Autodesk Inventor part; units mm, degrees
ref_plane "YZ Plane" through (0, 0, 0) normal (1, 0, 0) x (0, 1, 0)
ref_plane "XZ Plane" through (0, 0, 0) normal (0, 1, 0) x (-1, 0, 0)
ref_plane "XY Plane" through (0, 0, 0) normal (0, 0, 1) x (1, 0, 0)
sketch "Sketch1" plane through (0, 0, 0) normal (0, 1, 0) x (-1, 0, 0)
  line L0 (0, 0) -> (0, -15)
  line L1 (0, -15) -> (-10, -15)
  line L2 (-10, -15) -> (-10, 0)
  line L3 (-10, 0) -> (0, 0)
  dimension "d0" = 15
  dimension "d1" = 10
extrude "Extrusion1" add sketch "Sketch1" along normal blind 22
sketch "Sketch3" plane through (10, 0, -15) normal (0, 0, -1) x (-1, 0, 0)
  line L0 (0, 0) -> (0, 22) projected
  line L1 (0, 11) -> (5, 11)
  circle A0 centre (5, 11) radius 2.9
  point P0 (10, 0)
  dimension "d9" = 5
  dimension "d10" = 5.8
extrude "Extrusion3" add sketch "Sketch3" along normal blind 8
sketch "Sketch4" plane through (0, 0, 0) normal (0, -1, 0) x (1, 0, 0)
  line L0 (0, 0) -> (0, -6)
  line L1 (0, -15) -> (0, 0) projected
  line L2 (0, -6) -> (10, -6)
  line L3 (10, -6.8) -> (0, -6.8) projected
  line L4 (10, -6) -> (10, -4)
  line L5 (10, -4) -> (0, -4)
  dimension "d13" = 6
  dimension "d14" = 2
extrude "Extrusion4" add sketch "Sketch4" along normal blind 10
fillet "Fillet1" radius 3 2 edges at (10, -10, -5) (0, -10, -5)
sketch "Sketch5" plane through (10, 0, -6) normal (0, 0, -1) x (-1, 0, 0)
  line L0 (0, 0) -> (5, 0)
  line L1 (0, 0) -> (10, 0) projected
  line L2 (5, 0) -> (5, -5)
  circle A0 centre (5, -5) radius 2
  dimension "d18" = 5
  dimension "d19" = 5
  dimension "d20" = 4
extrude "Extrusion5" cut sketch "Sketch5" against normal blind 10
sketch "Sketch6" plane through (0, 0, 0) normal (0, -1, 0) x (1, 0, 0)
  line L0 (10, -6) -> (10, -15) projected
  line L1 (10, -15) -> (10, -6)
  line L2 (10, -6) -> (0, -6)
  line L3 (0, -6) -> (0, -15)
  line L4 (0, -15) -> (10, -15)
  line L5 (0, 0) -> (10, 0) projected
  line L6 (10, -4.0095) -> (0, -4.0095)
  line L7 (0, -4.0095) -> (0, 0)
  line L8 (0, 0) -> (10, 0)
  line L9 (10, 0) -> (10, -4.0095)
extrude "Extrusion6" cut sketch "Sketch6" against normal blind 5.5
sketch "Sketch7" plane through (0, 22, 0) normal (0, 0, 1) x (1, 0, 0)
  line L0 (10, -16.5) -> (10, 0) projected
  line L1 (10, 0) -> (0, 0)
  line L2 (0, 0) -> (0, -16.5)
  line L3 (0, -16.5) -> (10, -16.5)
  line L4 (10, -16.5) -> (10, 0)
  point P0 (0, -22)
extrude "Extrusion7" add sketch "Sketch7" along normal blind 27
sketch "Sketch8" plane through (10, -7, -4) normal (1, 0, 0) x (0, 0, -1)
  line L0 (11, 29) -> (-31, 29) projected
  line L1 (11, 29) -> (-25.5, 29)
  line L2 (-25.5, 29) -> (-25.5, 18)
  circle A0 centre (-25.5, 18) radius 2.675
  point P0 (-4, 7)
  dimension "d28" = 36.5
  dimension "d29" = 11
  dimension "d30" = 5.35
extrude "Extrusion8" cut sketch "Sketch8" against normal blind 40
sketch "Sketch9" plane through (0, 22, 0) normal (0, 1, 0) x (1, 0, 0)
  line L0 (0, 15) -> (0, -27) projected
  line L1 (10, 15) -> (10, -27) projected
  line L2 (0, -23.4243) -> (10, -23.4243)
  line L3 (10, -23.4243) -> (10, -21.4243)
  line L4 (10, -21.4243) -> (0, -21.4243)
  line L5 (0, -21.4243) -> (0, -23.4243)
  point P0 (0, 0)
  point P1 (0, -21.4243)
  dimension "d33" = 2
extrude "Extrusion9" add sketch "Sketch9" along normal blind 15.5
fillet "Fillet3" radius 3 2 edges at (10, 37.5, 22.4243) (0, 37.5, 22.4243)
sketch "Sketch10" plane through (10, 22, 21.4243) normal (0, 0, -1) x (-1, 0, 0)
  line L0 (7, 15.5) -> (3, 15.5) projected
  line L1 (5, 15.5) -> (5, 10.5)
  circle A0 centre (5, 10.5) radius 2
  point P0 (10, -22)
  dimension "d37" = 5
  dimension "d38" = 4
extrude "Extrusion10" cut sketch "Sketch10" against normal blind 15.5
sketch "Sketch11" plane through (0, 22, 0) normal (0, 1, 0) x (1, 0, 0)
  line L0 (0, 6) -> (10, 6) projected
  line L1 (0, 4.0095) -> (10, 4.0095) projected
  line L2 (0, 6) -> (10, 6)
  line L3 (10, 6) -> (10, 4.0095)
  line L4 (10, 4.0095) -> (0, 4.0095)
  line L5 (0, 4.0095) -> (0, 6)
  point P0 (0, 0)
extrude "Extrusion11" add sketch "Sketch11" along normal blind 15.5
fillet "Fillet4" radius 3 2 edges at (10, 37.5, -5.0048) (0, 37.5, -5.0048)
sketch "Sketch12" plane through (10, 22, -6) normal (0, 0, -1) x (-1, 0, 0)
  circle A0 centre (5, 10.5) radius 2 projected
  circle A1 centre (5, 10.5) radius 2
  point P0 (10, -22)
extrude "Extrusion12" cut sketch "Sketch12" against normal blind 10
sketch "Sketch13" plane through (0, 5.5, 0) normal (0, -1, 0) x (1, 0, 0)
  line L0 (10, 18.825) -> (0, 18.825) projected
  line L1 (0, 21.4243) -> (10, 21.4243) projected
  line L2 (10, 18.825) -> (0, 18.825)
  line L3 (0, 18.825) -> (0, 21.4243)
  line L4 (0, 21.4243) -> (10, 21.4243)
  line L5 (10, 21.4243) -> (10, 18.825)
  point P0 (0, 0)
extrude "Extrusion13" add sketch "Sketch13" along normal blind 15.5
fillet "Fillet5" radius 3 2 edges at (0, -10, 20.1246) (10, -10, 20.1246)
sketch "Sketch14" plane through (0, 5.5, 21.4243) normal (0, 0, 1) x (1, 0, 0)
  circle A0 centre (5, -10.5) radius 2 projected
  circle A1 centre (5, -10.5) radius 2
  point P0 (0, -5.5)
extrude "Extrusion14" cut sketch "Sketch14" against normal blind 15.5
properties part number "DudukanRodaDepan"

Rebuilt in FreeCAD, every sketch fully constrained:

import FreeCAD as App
import Part
import Sketcher
Q = App.Units.Quantity


def edges_at(feature, points):
    """Names of the edges that pass closest to the given points."""
    edges = feature.Shape.Edges
    near = lambda p: min(range(len(edges)), key=lambda i: edges[i].distToShape(Part.Vertex(*p))[0])
    return sorted({f"Edge{near(p) + 1}" for p in points})

doc = App.newDocument("Part")
body = doc.addObject("PartDesign::Body", "Body")

# Sketch on XZ plane
sketch1 = body.newObject("Sketcher::SketchObject", "Sketch")
sketch1.AttachmentSupport = (doc.getObject("XZ_Plane"), [""])
sketch1.MapMode = "FlatFace"
sketch1.addGeometry(Part.LineSegment(App.Vector(0, -15, 0), App.Vector(0, 0, 0)), False)
sketch1.addGeometry(Part.LineSegment(App.Vector(0, 0, 0), App.Vector(10, 0, 0)), False)
sketch1.addGeometry(Part.LineSegment(App.Vector(10, 0, 0), App.Vector(10, -15, 0)), False)
sketch1.addGeometry(Part.LineSegment(App.Vector(10, -15, 0), App.Vector(0, -15, 0)), False)
sketch1.addConstraint(Sketcher.Constraint("Coincident", 0, 2, 1, 1))
sketch1.addConstraint(Sketcher.Constraint("Coincident", 1, 2, 2, 1))
sketch1.addConstraint(Sketcher.Constraint("Coincident", 2, 2, 3, 1))
sketch1.addConstraint(Sketcher.Constraint("Coincident", 3, 2, 0, 1))
sketch1.addConstraint(Sketcher.Constraint("Vertical", 0))
sketch1.addConstraint(Sketcher.Constraint("Horizontal", 1))
sketch1.addConstraint(Sketcher.Constraint("Vertical", 2))
sketch1.addConstraint(Sketcher.Constraint("Horizontal", 3))
sketch1.addConstraint(Sketcher.Constraint("Coincident", 0, 2, -1, 1))
sketch1.addConstraint(Sketcher.Constraint("DistanceX", 1, 1, 1, 2, Q("10 mm")))
sketch1.addConstraint(Sketcher.Constraint("DistanceY", 0, 1, 0, 2, Q("15 mm")))
pad1 = body.newObject("PartDesign::Pad", "Pad")
pad1.Profile = sketch1
pad1.Length = 22
pad1.Reversed = True

# Sketch on XY plane
sketch2 = body.newObject("Sketcher::SketchObject", "Sketch001")
sketch2.AttachmentSupport = (doc.getObject("XY_Plane"), [""])
sketch2.MapMode = "FlatFace"
sketch2.AttachmentOffset = App.Placement(App.Vector(0, 0, -15), App.Rotation())
sketch2.addGeometry(Part.Circle(App.Vector(5, 11, 0), App.Vector(0, 0, 1), 2.9), False)
sketch2.addConstraint(Sketcher.Constraint("Diameter", 0, Q("5.8 mm")))
sketch2.addConstraint(Sketcher.Constraint("DistanceX", -1, 1, 0, 3, Q("5 mm")))
sketch2.addConstraint(Sketcher.Constraint("DistanceY", -1, 1, 0, 3, Q("11 mm")))
pad2 = body.newObject("PartDesign::Pad", "Pad001")
pad2.Profile = sketch2
pad2.Length = 8
pad2.Reversed = True

# Sketch on XZ plane
sketch3 = body.newObject("Sketcher::SketchObject", "Sketch002")
sketch3.AttachmentSupport = (doc.getObject("XZ_Plane"), [""])
sketch3.MapMode = "FlatFace"
sketch3.addGeometry(Part.LineSegment(App.Vector(10, -4, 0), App.Vector(0, -4, 0)), False)
sketch3.addGeometry(Part.LineSegment(App.Vector(0, -4, 0), App.Vector(0, -6, 0)), False)
sketch3.addGeometry(Part.LineSegment(App.Vector(0, -6, 0), App.Vector(10, -6, 0)), False)
sketch3.addGeometry(Part.LineSegment(App.Vector(10, -6, 0), App.Vector(10, -4, 0)), False)
sketch3.addConstraint(Sketcher.Constraint("Coincident", 0, 2, 1, 1))
sketch3.addConstraint(Sketcher.Constraint("Coincident", 1, 2, 2, 1))
sketch3.addConstraint(Sketcher.Constraint("Coincident", 2, 2, 3, 1))
sketch3.addConstraint(Sketcher.Constraint("Coincident", 3, 2, 0, 1))
sketch3.addConstraint(Sketcher.Constraint("Horizontal", 0))
sketch3.addConstraint(Sketcher.Constraint("Vertical", 1))
sketch3.addConstraint(Sketcher.Constraint("Horizontal", 2))
sketch3.addConstraint(Sketcher.Constraint("Vertical", 3))
sketch3.addConstraint(Sketcher.Constraint("PointOnObject", 0, 2, -2))
sketch3.addConstraint(Sketcher.Constraint("DistanceY", 1, 2, 1, 1, Q("2 mm")))
sketch3.addConstraint(Sketcher.Constraint("DistanceY", 1, 2, -1, 1, Q("6 mm")))
sketch3.addConstraint(Sketcher.Constraint("DistanceX", 0, 2, 0, 1, Q("10 mm")))
pad3 = body.newObject("PartDesign::Pad", "Pad002")
pad3.Profile = sketch3
pad3.Length = 10
doc.recompute()

fillet = body.newObject("PartDesign::Fillet", "Fillet")
fillet.Base = (pad3, edges_at(pad3, [(10, -10, -5), (0, -10, -5)]))
fillet.Radius = 3

# Sketch on XY plane
sketch4 = body.newObject("Sketcher::SketchObject", "Sketch003")
sketch4.AttachmentSupport = (doc.getObject("XY_Plane"), [""])
sketch4.MapMode = "FlatFace"
sketch4.AttachmentOffset = App.Placement(App.Vector(0, 0, -6), App.Rotation())
sketch4.addGeometry(Part.Circle(App.Vector(5, -5, 0), App.Vector(0, 0, 1), 2), False)
sketch4.addConstraint(Sketcher.Constraint("Diameter", 0, Q("4 mm")))
sketch4.addConstraint(Sketcher.Constraint("DistanceX", -1, 1, 0, 3, Q("5 mm")))
sketch4.addConstraint(Sketcher.Constraint("DistanceY", 0, 3, -1, 1, Q("5 mm")))
pocket1 = body.newObject("PartDesign::Pocket", "Pocket")
pocket1.Profile = sketch4
pocket1.Length = 10
pocket1.Reversed = True

# Sketch on XZ plane
sketch5 = body.newObject("Sketcher::SketchObject", "Sketch004")
sketch5.AttachmentSupport = (doc.getObject("XZ_Plane"), [""])
sketch5.MapMode = "FlatFace"
sketch5.addGeometry(Part.LineSegment(App.Vector(10, -15, 0), App.Vector(10, -6, 0)), False)
sketch5.addGeometry(Part.LineSegment(App.Vector(10, -6, 0), App.Vector(0, -6, 0)), False)
sketch5.addGeometry(Part.LineSegment(App.Vector(0, -6, 0), App.Vector(0, -15, 0)), False)
sketch5.addGeometry(Part.LineSegment(App.Vector(0, -15, 0), App.Vector(10, -15, 0)), False)
sketch5.addGeometry(Part.LineSegment(App.Vector(10, 0, 0), App.Vector(0, 0, 0)), False)
sketch5.addGeometry(Part.LineSegment(App.Vector(0, 0, 0), App.Vector(0, -4.0095, 0)), False)
sketch5.addGeometry(Part.LineSegment(App.Vector(0, -4.0095, 0), App.Vector(10, -4.0095, 0)), False)
sketch5.addGeometry(Part.LineSegment(App.Vector(10, -4.0095, 0), App.Vector(10, 0, 0)), False)
sketch5.addConstraint(Sketcher.Constraint("Coincident", 0, 2, 1, 1))
sketch5.addConstraint(Sketcher.Constraint("Coincident", 1, 2, 2, 1))
sketch5.addConstraint(Sketcher.Constraint("Coincident", 2, 2, 3, 1))
sketch5.addConstraint(Sketcher.Constraint("Coincident", 3, 2, 0, 1))
sketch5.addConstraint(Sketcher.Constraint("Coincident", 4, 2, 5, 1))
sketch5.addConstraint(Sketcher.Constraint("Coincident", 5, 2, 6, 1))
sketch5.addConstraint(Sketcher.Constraint("Coincident", 6, 2, 7, 1))
sketch5.addConstraint(Sketcher.Constraint("Coincident", 7, 2, 4, 1))
sketch5.addConstraint(Sketcher.Constraint("Vertical", 0))
sketch5.addConstraint(Sketcher.Constraint("Horizontal", 1))
sketch5.addConstraint(Sketcher.Constraint("Vertical", 2))
sketch5.addConstraint(Sketcher.Constraint("Horizontal", 3))
sketch5.addConstraint(Sketcher.Constraint("Horizontal", 4))
sketch5.addConstraint(Sketcher.Constraint("Vertical", 5))
sketch5.addConstraint(Sketcher.Constraint("Horizontal", 6))
sketch5.addConstraint(Sketcher.Constraint("Vertical", 7))
sketch5.addConstraint(Sketcher.Constraint("Coincident", 4, 2, -1, 1))
sketch5.addConstraint(Sketcher.Constraint("PointOnObject", 1, 2, -2))
sketch5.addConstraint(Sketcher.Constraint("Vertical", 3, 2, 6, 2))
sketch5.addConstraint(Sketcher.Constraint("DistanceX", 1, 2, 1, 1, Q("10 mm")))
sketch5.addConstraint(Sketcher.Constraint("DistanceY", 0, 1, 0, 2, Q("9 mm")))
sketch5.addConstraint(Sketcher.Constraint("DistanceY", 0, 2, -1, 1, Q("6 mm")))
sketch5.addConstraint(Sketcher.Constraint("DistanceY", 5, 2, 5, 1, Q("4.0095 mm")))
pocket2 = body.newObject("PartDesign::Pocket", "Pocket001")
pocket2.Profile = sketch5
pocket2.Length = 5.5

# Sketch on XY plane
sketch6 = body.newObject("Sketcher::SketchObject", "Sketch005")
sketch6.AttachmentSupport = (doc.getObject("XY_Plane"), [""])
sketch6.MapMode = "FlatFace"
sketch6.addGeometry(Part.LineSegment(App.Vector(0, 5.5, 0), App.Vector(10, 5.5, 0)), False)
sketch6.addGeometry(Part.LineSegment(App.Vector(10, 5.5, 0), App.Vector(10, 22, 0)), False)
sketch6.addGeometry(Part.LineSegment(App.Vector(10, 22, 0), App.Vector(0, 22, 0)), False)
sketch6.addGeometry(Part.LineSegment(App.Vector(0, 22, 0), App.Vector(0, 5.5, 0)), False)
sketch6.addConstraint(Sketcher.Constraint("Coincident", 0, 2, 1, 1))
sketch6.addConstraint(Sketcher.Constraint("Coincident", 1, 2, 2, 1))
sketch6.addConstraint(Sketcher.Constraint("Coincident", 2, 2, 3, 1))
sketch6.addConstraint(Sketcher.Constraint("Coincident", 3, 2, 0, 1))
sketch6.addConstraint(Sketcher.Constraint("Horizontal", 0))
sketch6.addConstraint(Sketcher.Constraint("Vertical", 1))
sketch6.addConstraint(Sketcher.Constraint("Horizontal", 2))
sketch6.addConstraint(Sketcher.Constraint("Vertical", 3))
sketch6.addConstraint(Sketcher.Constraint("PointOnObject", 2, 2, -2))
sketch6.addConstraint(Sketcher.Constraint("DistanceX", 0, 1, 0, 2, Q("10 mm")))
sketch6.addConstraint(Sketcher.Constraint("DistanceY", 1, 1, 1, 2, Q("16.5 mm")))
sketch6.addConstraint(Sketcher.Constraint("DistanceY", -1, 1, 1, 2, Q("22 mm")))
pad4 = body.newObject("PartDesign::Pad", "Pad003")
pad4.Profile = sketch6
pad4.Length = 27

# Sketch on YZ plane
sketch7 = body.newObject("Sketcher::SketchObject", "Sketch006")
sketch7.AttachmentSupport = (doc.getObject("YZ_Plane"), [""])
sketch7.MapMode = "FlatFace"
sketch7.AttachmentOffset = App.Placement(App.Vector(0, 0, 10), App.Rotation())
sketch7.addGeometry(Part.Circle(App.Vector(11, 21.5, 0), App.Vector(0, 0, 1), 2.675), False)
sketch7.addConstraint(Sketcher.Constraint("Diameter", 0, Q("5.35 mm")))
sketch7.addConstraint(Sketcher.Constraint("DistanceX", -1, 1, 0, 3, Q("11 mm")))
sketch7.addConstraint(Sketcher.Constraint("DistanceY", -1, 1, 0, 3, Q("21.5 mm")))
pocket3 = body.newObject("PartDesign::Pocket", "Pocket002")
pocket3.Profile = sketch7
pocket3.Length = 40

# Sketch on XZ plane
sketch8 = body.newObject("Sketcher::SketchObject", "Sketch007")
sketch8.AttachmentSupport = (doc.getObject("XZ_Plane"), [""])
sketch8.MapMode = "FlatFace"
sketch8.AttachmentOffset = App.Placement(App.Vector(0, 0, -22), App.Rotation())
sketch8.addGeometry(Part.LineSegment(App.Vector(10, 21.4243, 0), App.Vector(0, 21.4243, 0)), False)
sketch8.addGeometry(Part.LineSegment(App.Vector(0, 21.4243, 0), App.Vector(0, 23.4243, 0)), False)
sketch8.addGeometry(Part.LineSegment(App.Vector(0, 23.4243, 0), App.Vector(10, 23.4243, 0)), False)
sketch8.addGeometry(Part.LineSegment(App.Vector(10, 23.4243, 0), App.Vector(10, 21.4243, 0)), False)
sketch8.addConstraint(Sketcher.Constraint("Coincident", 0, 2, 1, 1))
sketch8.addConstraint(Sketcher.Constraint("Coincident", 1, 2, 2, 1))
sketch8.addConstraint(Sketcher.Constraint("Coincident", 2, 2, 3, 1))
sketch8.addConstraint(Sketcher.Constraint("Coincident", 3, 2, 0, 1))
sketch8.addConstraint(Sketcher.Constraint("Horizontal", 0))
sketch8.addConstraint(Sketcher.Constraint("Vertical", 1))
sketch8.addConstraint(Sketcher.Constraint("Horizontal", 2))
sketch8.addConstraint(Sketcher.Constraint("Vertical", 3))
sketch8.addConstraint(Sketcher.Constraint("PointOnObject", 0, 2, -2))
sketch8.addConstraint(Sketcher.Constraint("DistanceY", 1, 1, 1, 2, Q("2 mm")))
sketch8.addConstraint(Sketcher.Constraint("DistanceX", 0, 2, 0, 1, Q("10 mm")))
sketch8.addConstraint(Sketcher.Constraint("DistanceY", -1, 1, 0, 2, Q("21.4243 mm")))
pad5 = body.newObject("PartDesign::Pad", "Pad004")
pad5.Profile = sketch8
pad5.Length = 15.5
pad5.Reversed = True
doc.recompute()

fillet2 = body.newObject("PartDesign::Fillet", "Fillet001")
fillet2.Base = (pad5, edges_at(pad5, [(10, 37.5, 22.424), (0, 37.5, 22.424)]))
fillet2.Radius = 3

# Sketch on XY plane
sketch9 = body.newObject("Sketcher::SketchObject", "Sketch008")
sketch9.AttachmentSupport = (doc.getObject("XY_Plane"), [""])
sketch9.MapMode = "FlatFace"
sketch9.AttachmentOffset = App.Placement(App.Vector(0, 0, 21.4243), App.Rotation())
sketch9.addGeometry(Part.Circle(App.Vector(5, 32.5, 0), App.Vector(0, 0, 1), 2), False)
sketch9.addConstraint(Sketcher.Constraint("Diameter", 0, Q("4 mm")))
sketch9.addConstraint(Sketcher.Constraint("DistanceX", -1, 1, 0, 3, Q("5 mm")))
sketch9.addConstraint(Sketcher.Constraint("DistanceY", -1, 1, 0, 3, Q("32.5 mm")))
pocket4 = body.newObject("PartDesign::Pocket", "Pocket003")
pocket4.Profile = sketch9
pocket4.Length = 15.5
pocket4.Reversed = True

# Sketch on XZ plane
sketch10 = body.newObject("Sketcher::SketchObject", "Sketch009")
sketch10.AttachmentSupport = (doc.getObject("XZ_Plane"), [""])
sketch10.MapMode = "FlatFace"
sketch10.AttachmentOffset = App.Placement(App.Vector(0, 0, -22), App.Rotation())
sketch10.addGeometry(Part.LineSegment(App.Vector(10, -6, 0), App.Vector(0, -6, 0)), False)
sketch10.addGeometry(Part.LineSegment(App.Vector(0, -6, 0), App.Vector(0, -4.0095, 0)), False)
sketch10.addGeometry(Part.LineSegment(App.Vector(0, -4.0095, 0), App.Vector(10, -4.0095, 0)), False)
sketch10.addGeometry(Part.LineSegment(App.Vector(10, -4.0095, 0), App.Vector(10, -6, 0)), False)
sketch10.addConstraint(Sketcher.Constraint("Coincident", 0, 2, 1, 1))
sketch10.addConstraint(Sketcher.Constraint("Coincident", 1, 2, 2, 1))
sketch10.addConstraint(Sketcher.Constraint("Coincident", 2, 2, 3, 1))
sketch10.addConstraint(Sketcher.Constraint("Coincident", 3, 2, 0, 1))
sketch10.addConstraint(Sketcher.Constraint("Horizontal", 0))
sketch10.addConstraint(Sketcher.Constraint("Vertical", 1))
sketch10.addConstraint(Sketcher.Constraint("Horizontal", 2))
sketch10.addConstraint(Sketcher.Constraint("Vertical", 3))
sketch10.addConstraint(Sketcher.Constraint("PointOnObject", 0, 2, -2))
sketch10.addConstraint(Sketcher.Constraint("DistanceX", 0, 2, 0, 1, Q("10 mm")))
sketch10.addConstraint(Sketcher.Constraint("DistanceY", 0, 2, -1, 1, Q("6 mm")))
sketch10.addConstraint(Sketcher.Constraint("DistanceY", 1, 1, 1, 2, Q("1.9905 mm")))
pad6 = body.newObject("PartDesign::Pad", "Pad005")
pad6.Profile = sketch10
pad6.Length = 15.5
pad6.Reversed = True
doc.recompute()

fillet3 = body.newObject("PartDesign::Fillet", "Fillet002")
fillet3.Base = (pad6, edges_at(pad6, [(10, 37.5, -5.005), (0, 37.5, -5.005)]))
fillet3.Radius = 3

# Sketch on XY plane
sketch11 = body.newObject("Sketcher::SketchObject", "Sketch010")
sketch11.AttachmentSupport = (doc.getObject("XY_Plane"), [""])
sketch11.MapMode = "FlatFace"
sketch11.AttachmentOffset = App.Placement(App.Vector(0, 0, -6), App.Rotation())
sketch11.addGeometry(Part.Circle(App.Vector(5, 32.5, 0), App.Vector(0, 0, 1), 2), False)
sketch11.addConstraint(Sketcher.Constraint("Diameter", 0, Q("4 mm")))
sketch11.addConstraint(Sketcher.Constraint("DistanceX", -1, 1, 0, 3, Q("5 mm")))
sketch11.addConstraint(Sketcher.Constraint("DistanceY", -1, 1, 0, 3, Q("32.5 mm")))
pocket5 = body.newObject("PartDesign::Pocket", "Pocket004")
pocket5.Profile = sketch11
pocket5.Length = 10
pocket5.Reversed = True

# Sketch on XZ plane
sketch12 = body.newObject("Sketcher::SketchObject", "Sketch011")
sketch12.AttachmentSupport = (doc.getObject("XZ_Plane"), [""])
sketch12.MapMode = "FlatFace"
sketch12.AttachmentOffset = App.Placement(App.Vector(0, 0, -5.5), App.Rotation())
sketch12.addGeometry(Part.LineSegment(App.Vector(0, 18.825, 0), App.Vector(10, 18.825, 0)), False)
sketch12.addGeometry(Part.LineSegment(App.Vector(10, 18.825, 0), App.Vector(10, 21.4243, 0)), False)
sketch12.addGeometry(Part.LineSegment(App.Vector(10, 21.4243, 0), App.Vector(0, 21.4243, 0)), False)
sketch12.addGeometry(Part.LineSegment(App.Vector(0, 21.4243, 0), App.Vector(0, 18.825, 0)), False)
sketch12.addConstraint(Sketcher.Constraint("Coincident", 0, 2, 1, 1))
sketch12.addConstraint(Sketcher.Constraint("Coincident", 1, 2, 2, 1))
sketch12.addConstraint(Sketcher.Constraint("Coincident", 2, 2, 3, 1))
sketch12.addConstraint(Sketcher.Constraint("Coincident", 3, 2, 0, 1))
sketch12.addConstraint(Sketcher.Constraint("Horizontal", 0))
sketch12.addConstraint(Sketcher.Constraint("Vertical", 1))
sketch12.addConstraint(Sketcher.Constraint("Horizontal", 2))
sketch12.addConstraint(Sketcher.Constraint("Vertical", 3))
sketch12.addConstraint(Sketcher.Constraint("PointOnObject", 2, 2, -2))
sketch12.addConstraint(Sketcher.Constraint("DistanceX", 0, 1, 0, 2, Q("10 mm")))
sketch12.addConstraint(Sketcher.Constraint("DistanceY", 1, 1, 1, 2, Q("2.5993 mm")))
sketch12.addConstraint(Sketcher.Constraint("DistanceY", -1, 1, 0, 2, Q("18.825 mm")))
pad7 = body.newObject("PartDesign::Pad", "Pad006")
pad7.Profile = sketch12
pad7.Length = 15.5
doc.recompute()

fillet4 = body.newObject("PartDesign::Fillet", "Fillet003")
fillet4.Base = (pad7, edges_at(pad7, [(0, -10, 20.125), (10, -10, 20.125)]))
fillet4.Radius = 3

# Sketch on XY plane
sketch13 = body.newObject("Sketcher::SketchObject", "Sketch012")
sketch13.AttachmentSupport = (doc.getObject("XY_Plane"), [""])
sketch13.MapMode = "FlatFace"
sketch13.AttachmentOffset = App.Placement(App.Vector(0, 0, 21.4243), App.Rotation())
sketch13.addGeometry(Part.Circle(App.Vector(5, -5, 0), App.Vector(0, 0, 1), 2), False)
sketch13.addConstraint(Sketcher.Constraint("Diameter", 0, Q("4 mm")))
sketch13.addConstraint(Sketcher.Constraint("DistanceX", -1, 1, 0, 3, Q("5 mm")))
sketch13.addConstraint(Sketcher.Constraint("DistanceY", 0, 3, -1, 1, Q("5 mm")))
pocket6 = body.newObject("PartDesign::Pocket", "Pocket005")
pocket6.Profile = sketch13
pocket6.Length = 15.5

doc.recompute()
